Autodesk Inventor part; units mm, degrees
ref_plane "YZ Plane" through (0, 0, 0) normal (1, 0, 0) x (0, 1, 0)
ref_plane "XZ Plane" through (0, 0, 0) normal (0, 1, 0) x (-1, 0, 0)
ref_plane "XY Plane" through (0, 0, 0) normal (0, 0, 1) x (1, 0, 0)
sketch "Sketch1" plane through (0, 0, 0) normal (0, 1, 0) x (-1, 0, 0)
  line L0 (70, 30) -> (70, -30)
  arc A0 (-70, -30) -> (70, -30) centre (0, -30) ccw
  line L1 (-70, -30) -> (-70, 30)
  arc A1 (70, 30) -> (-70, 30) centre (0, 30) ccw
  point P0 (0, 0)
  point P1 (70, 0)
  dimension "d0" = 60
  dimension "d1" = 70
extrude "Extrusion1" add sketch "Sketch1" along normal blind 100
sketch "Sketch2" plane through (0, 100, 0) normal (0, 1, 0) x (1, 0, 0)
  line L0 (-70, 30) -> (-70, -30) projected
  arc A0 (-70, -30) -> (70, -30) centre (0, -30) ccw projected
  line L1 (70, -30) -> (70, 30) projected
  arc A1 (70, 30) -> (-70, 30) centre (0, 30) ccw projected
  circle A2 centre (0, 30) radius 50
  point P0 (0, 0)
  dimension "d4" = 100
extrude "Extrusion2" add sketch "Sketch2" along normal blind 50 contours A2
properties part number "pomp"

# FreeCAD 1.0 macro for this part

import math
import FreeCAD as App
import Part
import Sketcher

V = App.Vector
Q = App.Units.Quantity

doc = App.newDocument("Part")
params = doc.addObject("Spreadsheet::Sheet", "Params")
for row, (alias, value) in enumerate([
    ("pad1_length", "3.9370079 in"),
    ("sketch2_diameter", "3.937 in"),
    ("pad2_length", "1.9685039 in"),
], start=1):
    params.set(f"A{row}", alias)
    params.set(f"B{row}", "=" + value)
    params.setAlias(f"B{row}", alias)

body = doc.addObject("PartDesign::Body", "Body")

# Sketch on XZ plane
sketch1 = doc.addObject("Sketcher::SketchObject", "Sketch")
body.addObject(sketch1)
sketch1.AttachmentSupport = (doc.XZ_Plane, [""])
sketch1.MapMode = "FlatFace"
sketch1.addGeometry([
    Part.LineSegment(V(-70, -30, 0), V(-70, 30, 0)),
    Part.ArcOfCircle(Part.Circle(V(0, 30, 0), V(0, 0, 1), 70), math.radians(0), math.radians(180)),
    Part.LineSegment(V(70, 30, 0), V(70, -30, 0)),
    Part.ArcOfCircle(Part.Circle(V(0, -30, 0), V(0, 0, 1), 70), math.radians(180), math.radians(360)),
], False)
sketch1.addConstraint([
    Sketcher.Constraint("Tangent", 0, 2, 1, 2),
    Sketcher.Constraint("Tangent", 1, 1, 2, 1),
    Sketcher.Constraint("Tangent", 2, 2, 3, 2),
    Sketcher.Constraint("Tangent", 3, 1, 0, 1),
    Sketcher.Constraint("Vertical", 0),
    Sketcher.Constraint("Vertical", 2),
    Sketcher.Constraint("Symmetric", 1, 3, 3, 3, -1, 1),
    Sketcher.Constraint("Radius", 1, Q("2.7559 in")),
    Sketcher.Constraint("DistanceY", 0, 1, 0, 2, Q("2.3622 in")),
])
pad1 = doc.addObject("PartDesign::Pad", "Pad")
body.addObject(pad1)
pad1.Profile = sketch1
pad1.setExpression("Length", "Params.pad1_length")
pad1.Reversed = True

# Sketch on XZ plane
sketch2 = doc.addObject("Sketcher::SketchObject", "Sketch001")
body.addObject(sketch2)
sketch2.AttachmentSupport = (doc.XZ_Plane, [""])
sketch2.MapMode = "FlatFace"
sketch2.AttachmentOffset = App.Placement(V(0, 0, -3.9370079 * 25.4), App.Rotation())
sketch2.addGeometry(Part.Circle(V(0, -30, 0), V(0, 0, 1), 50), False)
sketch2.addConstraint([
    Sketcher.Constraint("PointOnObject", 0, 3, -2),
    Sketcher.Constraint("Diameter", 0, Q("3.937 in")),
    Sketcher.Constraint("DistanceY", 0, 3, -1, 1, Q("1.1811 in")),
])
sketch2.setExpression("Constraints[1]", "Params.sketch2_diameter")
pad2 = doc.addObject("PartDesign::Pad", "Pad001")
body.addObject(pad2)
pad2.Profile = sketch2
pad2.setExpression("Length", "Params.pad2_length")
pad2.Reversed = True

doc.recompute()
